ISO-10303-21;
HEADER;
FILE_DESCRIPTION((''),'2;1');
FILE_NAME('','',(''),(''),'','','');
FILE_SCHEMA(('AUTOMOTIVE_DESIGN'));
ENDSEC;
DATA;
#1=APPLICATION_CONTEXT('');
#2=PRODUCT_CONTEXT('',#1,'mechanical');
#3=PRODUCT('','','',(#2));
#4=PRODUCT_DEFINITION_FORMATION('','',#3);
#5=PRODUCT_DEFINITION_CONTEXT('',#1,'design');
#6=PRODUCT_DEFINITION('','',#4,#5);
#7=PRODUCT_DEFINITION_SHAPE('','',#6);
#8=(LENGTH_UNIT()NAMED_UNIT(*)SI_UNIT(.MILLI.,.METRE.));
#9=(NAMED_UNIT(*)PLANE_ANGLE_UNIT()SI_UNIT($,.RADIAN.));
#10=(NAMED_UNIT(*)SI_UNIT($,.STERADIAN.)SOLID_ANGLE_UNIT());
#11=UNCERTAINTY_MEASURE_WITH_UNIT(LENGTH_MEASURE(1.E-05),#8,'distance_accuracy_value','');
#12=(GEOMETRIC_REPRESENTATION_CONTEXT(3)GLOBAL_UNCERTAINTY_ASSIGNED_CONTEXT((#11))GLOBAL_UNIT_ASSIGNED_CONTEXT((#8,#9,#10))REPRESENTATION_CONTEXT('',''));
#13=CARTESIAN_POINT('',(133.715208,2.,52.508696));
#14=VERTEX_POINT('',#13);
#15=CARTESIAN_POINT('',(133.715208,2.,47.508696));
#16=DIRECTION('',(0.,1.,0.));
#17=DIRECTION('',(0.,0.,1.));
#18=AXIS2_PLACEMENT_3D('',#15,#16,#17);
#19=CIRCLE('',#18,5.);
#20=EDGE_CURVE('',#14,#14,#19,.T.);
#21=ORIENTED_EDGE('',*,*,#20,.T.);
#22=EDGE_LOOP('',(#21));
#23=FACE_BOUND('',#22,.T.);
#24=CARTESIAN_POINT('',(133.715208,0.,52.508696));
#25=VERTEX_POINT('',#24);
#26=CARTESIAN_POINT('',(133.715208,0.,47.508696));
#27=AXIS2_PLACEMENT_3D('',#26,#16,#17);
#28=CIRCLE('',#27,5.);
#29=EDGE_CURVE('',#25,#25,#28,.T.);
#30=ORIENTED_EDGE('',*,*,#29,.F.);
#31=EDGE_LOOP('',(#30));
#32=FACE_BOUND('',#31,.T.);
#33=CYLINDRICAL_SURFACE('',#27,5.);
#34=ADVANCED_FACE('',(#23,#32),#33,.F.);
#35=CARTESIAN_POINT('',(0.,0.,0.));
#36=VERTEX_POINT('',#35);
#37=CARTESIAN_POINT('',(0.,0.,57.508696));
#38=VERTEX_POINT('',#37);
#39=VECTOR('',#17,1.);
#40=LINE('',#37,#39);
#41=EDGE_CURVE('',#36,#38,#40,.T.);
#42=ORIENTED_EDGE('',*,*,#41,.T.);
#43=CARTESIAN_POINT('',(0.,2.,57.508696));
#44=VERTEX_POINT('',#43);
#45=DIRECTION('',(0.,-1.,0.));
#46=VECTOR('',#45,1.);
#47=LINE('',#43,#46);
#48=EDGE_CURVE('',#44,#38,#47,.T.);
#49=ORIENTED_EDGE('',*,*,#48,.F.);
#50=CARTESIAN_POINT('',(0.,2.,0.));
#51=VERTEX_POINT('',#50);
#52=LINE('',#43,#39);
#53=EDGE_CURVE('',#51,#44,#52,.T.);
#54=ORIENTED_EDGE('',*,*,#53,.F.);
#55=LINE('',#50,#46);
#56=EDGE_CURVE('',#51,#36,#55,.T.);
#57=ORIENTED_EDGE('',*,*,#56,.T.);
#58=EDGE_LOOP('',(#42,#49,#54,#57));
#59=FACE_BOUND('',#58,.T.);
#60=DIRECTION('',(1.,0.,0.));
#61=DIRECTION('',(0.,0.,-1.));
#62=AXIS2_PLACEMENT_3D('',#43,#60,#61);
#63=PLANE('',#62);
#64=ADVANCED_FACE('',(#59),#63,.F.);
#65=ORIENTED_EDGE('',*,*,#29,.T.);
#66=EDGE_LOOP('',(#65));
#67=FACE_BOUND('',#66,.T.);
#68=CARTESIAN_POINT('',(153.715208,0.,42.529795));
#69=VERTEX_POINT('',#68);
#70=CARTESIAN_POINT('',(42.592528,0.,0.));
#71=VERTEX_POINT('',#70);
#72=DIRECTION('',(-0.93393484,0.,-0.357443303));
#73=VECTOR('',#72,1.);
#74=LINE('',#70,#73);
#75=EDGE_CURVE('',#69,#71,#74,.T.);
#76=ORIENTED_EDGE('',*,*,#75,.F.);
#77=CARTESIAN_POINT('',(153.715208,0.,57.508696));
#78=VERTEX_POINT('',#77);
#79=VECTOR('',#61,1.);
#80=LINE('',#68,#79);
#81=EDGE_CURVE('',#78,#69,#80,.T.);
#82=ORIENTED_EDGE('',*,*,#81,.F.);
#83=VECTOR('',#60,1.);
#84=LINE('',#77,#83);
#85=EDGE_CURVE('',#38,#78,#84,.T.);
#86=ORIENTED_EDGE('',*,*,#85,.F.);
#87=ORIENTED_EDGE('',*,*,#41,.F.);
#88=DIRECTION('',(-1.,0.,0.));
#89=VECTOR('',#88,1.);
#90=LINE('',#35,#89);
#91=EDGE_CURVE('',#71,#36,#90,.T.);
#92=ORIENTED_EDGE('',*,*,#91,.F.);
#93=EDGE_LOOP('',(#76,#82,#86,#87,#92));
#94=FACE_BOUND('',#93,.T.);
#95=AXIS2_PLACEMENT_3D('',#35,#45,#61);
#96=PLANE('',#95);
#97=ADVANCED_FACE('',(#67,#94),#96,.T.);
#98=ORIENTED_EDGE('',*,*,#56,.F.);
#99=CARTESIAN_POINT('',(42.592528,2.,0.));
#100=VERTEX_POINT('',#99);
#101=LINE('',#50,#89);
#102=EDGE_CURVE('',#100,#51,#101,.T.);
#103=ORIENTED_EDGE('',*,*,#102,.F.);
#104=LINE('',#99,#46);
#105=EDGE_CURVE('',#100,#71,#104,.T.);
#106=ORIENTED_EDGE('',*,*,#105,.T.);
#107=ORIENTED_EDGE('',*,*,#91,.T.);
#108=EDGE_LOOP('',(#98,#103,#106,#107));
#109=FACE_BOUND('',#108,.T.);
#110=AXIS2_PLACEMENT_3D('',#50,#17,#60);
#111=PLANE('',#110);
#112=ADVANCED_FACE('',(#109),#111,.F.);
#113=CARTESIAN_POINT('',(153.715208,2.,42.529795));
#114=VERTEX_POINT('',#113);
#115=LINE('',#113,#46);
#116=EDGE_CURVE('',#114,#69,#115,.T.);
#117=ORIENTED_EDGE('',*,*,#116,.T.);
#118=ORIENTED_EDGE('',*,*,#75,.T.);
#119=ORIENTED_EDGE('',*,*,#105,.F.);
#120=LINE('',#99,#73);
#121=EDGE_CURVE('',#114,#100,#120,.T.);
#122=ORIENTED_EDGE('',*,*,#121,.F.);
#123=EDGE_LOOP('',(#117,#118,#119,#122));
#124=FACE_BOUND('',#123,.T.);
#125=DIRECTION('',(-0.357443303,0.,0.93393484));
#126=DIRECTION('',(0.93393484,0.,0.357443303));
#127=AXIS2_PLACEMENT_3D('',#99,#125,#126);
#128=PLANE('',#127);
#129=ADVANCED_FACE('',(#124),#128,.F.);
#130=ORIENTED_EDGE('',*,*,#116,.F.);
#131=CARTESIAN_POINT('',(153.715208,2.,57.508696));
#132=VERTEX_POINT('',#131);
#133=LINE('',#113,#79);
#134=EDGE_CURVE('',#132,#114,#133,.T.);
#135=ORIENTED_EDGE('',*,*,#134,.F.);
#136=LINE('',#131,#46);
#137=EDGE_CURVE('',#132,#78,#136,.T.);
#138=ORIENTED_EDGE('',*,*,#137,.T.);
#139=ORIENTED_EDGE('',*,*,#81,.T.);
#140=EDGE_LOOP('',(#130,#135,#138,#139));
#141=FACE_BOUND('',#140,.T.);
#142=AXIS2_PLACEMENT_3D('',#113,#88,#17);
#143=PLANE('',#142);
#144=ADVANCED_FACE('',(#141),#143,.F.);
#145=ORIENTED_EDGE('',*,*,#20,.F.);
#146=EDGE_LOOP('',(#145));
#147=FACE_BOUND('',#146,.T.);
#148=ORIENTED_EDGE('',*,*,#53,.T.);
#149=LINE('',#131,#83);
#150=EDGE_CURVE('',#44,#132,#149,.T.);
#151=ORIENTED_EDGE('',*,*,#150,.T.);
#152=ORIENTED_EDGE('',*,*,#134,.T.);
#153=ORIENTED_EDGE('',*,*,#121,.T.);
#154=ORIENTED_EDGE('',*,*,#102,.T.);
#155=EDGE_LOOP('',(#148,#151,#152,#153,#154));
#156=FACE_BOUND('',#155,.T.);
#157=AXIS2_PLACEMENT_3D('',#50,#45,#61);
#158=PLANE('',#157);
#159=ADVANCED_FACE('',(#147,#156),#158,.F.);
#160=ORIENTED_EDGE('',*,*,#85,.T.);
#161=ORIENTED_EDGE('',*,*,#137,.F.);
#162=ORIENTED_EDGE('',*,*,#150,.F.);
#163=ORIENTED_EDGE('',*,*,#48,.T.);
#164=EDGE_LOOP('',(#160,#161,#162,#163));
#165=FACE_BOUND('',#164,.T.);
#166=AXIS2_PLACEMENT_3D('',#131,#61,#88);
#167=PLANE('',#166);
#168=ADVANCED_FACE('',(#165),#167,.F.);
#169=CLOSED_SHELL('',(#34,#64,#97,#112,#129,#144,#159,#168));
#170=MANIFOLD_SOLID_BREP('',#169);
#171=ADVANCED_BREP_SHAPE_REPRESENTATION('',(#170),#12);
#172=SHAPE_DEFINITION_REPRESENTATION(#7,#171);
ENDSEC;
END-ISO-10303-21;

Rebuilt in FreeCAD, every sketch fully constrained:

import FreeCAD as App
import Part
import Sketcher

V = App.Vector


def add_polygon(sketch, points):
    """Adds a closed chain of lines whose ends are joined by coincident constraints."""
    first, n = sketch.GeometryCount, len(points)
    for a, b in zip(points, points[1:] + points[:1]):
        sketch.addGeometry(Part.LineSegment(App.Vector(*a, 0), App.Vector(*b, 0)), False)
    for i in range(n):
        sketch.addConstraint(Sketcher.Constraint("Coincident", first + i, 2, first + (i + 1) % n, 1))

doc = App.newDocument("Part")
body = doc.addObject("PartDesign::Body", "Body")

# Sketch on XZ plane
sketch1 = doc.addObject("Sketcher::SketchObject", "Sketch")
body.addObject(sketch1)
sketch1.AttachmentSupport = (doc.XZ_Plane, [""])
sketch1.MapMode = "FlatFace"
add_polygon(sketch1, [(43, 0), (0, 0), (0, 58), (154, 58), (154, 43)])  # lines 0-4
sketch1.addConstraint(Sketcher.Constraint("Horizontal", 0))
sketch1.addConstraint(Sketcher.Constraint("Vertical", 1))
sketch1.addConstraint(Sketcher.Constraint("Horizontal", 2))
sketch1.addConstraint(Sketcher.Constraint("Vertical", 3))
sketch1.addConstraint(Sketcher.Constraint("Coincident", 0, 2, -1, 1))
sketch1.addConstraint(Sketcher.Constraint("DistanceY", 3, 2, 3, 1, 14.9789))
sketch1.addConstraint(Sketcher.Constraint("DistanceX", 0, 2, 0, 1, 42.592528))
sketch1.addConstraint(Sketcher.Constraint("DistanceX", 2, 1, 2, 2, 153.715208))
sketch1.addConstraint(Sketcher.Constraint("DistanceY", 1, 1, 1, 2, 57.508696))
pad1 = doc.addObject("PartDesign::Pad", "Pad")
body.addObject(pad1)
pad1.Profile = sketch1
pad1.Length = 2
pad1.Reversed = True

# Sketch on XZ plane
sketch2 = doc.addObject("Sketcher::SketchObject", "Sketch001")
body.addObject(sketch2)
sketch2.AttachmentSupport = (doc.XZ_Plane, [""])
sketch2.MapMode = "FlatFace"
sketch2.AttachmentOffset = App.Placement(V(0, 0, -2), App.Rotation())
sketch2.addGeometry(Part.Circle(V(134, 48, 0), V(0, 0, 1), 5), False)
sketch2.addConstraint(Sketcher.Constraint("Diameter", 0, 10.0))
sketch2.addConstraint(Sketcher.Constraint("DistanceX", -1, 1, 0, 3, 133.715208))
sketch2.addConstraint(Sketcher.Constraint("DistanceY", -1, 1, 0, 3, 47.508696))
pocket1 = doc.addObject("PartDesign::Pocket", "Pocket")
body.addObject(pocket1)
pocket1.Profile = sketch2
pocket1.Type = "ThroughAll"
pocket1.Reversed = True

doc.recompute()
